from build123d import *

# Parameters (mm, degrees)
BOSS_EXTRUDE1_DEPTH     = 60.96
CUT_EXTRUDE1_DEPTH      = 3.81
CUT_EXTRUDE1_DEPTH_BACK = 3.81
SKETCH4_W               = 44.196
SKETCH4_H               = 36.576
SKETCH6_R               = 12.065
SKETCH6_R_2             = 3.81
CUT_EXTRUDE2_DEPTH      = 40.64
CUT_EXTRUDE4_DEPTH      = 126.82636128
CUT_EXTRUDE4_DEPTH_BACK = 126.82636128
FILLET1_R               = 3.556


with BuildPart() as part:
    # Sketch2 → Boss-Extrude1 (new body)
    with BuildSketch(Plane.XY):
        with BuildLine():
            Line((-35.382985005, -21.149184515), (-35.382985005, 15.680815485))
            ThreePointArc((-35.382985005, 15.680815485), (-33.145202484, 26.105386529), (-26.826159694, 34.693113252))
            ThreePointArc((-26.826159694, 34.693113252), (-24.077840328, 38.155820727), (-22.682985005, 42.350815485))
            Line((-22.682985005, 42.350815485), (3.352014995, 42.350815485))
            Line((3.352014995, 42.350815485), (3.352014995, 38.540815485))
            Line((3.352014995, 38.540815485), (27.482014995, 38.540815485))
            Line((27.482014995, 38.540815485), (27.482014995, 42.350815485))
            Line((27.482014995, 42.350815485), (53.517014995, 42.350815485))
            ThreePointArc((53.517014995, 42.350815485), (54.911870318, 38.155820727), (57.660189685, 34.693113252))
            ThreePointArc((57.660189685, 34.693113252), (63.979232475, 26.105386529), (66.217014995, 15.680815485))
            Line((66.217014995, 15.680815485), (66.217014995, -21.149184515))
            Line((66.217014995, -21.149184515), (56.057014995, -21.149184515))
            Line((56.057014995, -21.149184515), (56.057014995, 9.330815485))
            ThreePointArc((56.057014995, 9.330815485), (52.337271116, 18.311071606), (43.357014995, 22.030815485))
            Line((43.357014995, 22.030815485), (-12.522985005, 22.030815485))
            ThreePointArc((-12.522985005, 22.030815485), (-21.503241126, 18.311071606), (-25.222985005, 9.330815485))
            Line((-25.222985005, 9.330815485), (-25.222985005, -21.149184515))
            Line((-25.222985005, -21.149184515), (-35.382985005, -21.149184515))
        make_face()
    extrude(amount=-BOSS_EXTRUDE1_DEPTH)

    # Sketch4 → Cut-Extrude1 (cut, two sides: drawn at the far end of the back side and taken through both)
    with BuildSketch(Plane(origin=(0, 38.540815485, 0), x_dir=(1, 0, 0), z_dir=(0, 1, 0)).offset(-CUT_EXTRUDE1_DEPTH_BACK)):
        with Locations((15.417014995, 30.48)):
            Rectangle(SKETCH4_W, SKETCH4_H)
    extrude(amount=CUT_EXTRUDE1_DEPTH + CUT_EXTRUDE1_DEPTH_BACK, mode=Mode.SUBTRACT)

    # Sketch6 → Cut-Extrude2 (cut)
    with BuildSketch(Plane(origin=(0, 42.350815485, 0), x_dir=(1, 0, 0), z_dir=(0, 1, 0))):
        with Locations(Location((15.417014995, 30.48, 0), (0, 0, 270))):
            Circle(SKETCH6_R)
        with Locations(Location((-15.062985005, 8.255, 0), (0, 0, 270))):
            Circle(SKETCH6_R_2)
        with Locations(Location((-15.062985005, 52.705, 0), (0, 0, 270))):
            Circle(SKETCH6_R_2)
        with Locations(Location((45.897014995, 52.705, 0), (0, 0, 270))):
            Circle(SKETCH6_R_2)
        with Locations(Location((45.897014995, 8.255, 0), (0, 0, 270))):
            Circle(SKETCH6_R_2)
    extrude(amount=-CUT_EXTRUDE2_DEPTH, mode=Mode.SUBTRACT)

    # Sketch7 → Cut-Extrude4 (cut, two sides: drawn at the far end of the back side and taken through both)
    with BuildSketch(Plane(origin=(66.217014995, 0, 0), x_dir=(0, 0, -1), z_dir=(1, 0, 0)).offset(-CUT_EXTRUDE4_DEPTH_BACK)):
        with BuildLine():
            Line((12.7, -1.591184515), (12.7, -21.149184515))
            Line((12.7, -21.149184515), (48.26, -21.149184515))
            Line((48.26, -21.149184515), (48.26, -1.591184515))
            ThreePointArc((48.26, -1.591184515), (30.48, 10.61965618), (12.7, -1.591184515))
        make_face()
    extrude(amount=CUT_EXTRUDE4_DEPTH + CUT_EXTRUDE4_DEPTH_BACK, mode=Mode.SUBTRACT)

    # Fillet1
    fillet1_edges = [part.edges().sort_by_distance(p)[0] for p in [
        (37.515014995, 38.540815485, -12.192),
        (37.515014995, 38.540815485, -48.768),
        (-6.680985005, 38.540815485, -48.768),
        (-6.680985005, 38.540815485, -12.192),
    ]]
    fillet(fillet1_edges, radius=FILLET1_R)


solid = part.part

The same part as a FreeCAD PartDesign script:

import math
import FreeCAD as App
import Part
import Sketcher
Q = App.Units.Quantity


def edges_at(feature, points):
    """Names of the edges that pass closest to the given points."""
    edges = feature.Shape.Edges
    near = lambda p: min(range(len(edges)), key=lambda i: edges[i].distToShape(Part.Vertex(*p))[0])
    return sorted({f"Edge{near(p) + 1}" for p in points})

doc = App.newDocument("Part")
body = doc.addObject("PartDesign::Body", "Body")

# Sketch on XY plane
sketch1 = body.newObject("Sketcher::SketchObject", "Sketch")
sketch1.AttachmentSupport = (doc.getObject("XY_Plane"), [""])
sketch1.MapMode = "FlatFace"
sketch1.addGeometry(Part.LineSegment(App.Vector(-35.4, 15.7, 0), App.Vector(-35.4, -21.1, 0)), False)
sketch1.addGeometry(Part.LineSegment(App.Vector(-35.4, -21.1, 0), App.Vector(-25.2, -21.1, 0)), False)
sketch1.addGeometry(Part.LineSegment(App.Vector(-25.2, -21.1, 0), App.Vector(-25.2, 9.3, 0)), False)
sketch1.addGeometry(Part.ArcOfCircle(Part.Circle(App.Vector(-12.5, 9.3, 0), App.Vector(0, 0, 1), 12.7), math.radians(90), math.radians(180)), False)
sketch1.addGeometry(Part.LineSegment(App.Vector(-12.5, 22, 0), App.Vector(43.4, 22, 0)), False)
sketch1.addGeometry(Part.ArcOfCircle(Part.Circle(App.Vector(43.4, 9.3, 0), App.Vector(0, 0, 1), 12.7), math.radians(0), math.radians(90)), False)
sketch1.addGeometry(Part.LineSegment(App.Vector(56.1, 9.3, 0), App.Vector(56.1, -21.1, 0)), False)
sketch1.addGeometry(Part.LineSegment(App.Vector(56.1, -21.1, 0), App.Vector(66.2, -21.1, 0)), False)
sketch1.addGeometry(Part.LineSegment(App.Vector(66.2, -21.1, 0), App.Vector(66.2, 15.7, 0)), False)
sketch1.addGeometry(Part.ArcOfCircle(Part.Circle(App.Vector(40.8, 15.7, 0), App.Vector(0, 0, 1), 25.4), math.radians(0), math.radians(48)), False)
sketch1.addGeometry(Part.ArcOfCircle(Part.Circle(App.Vector(66.1, 44.2, 0), App.Vector(0, 0, 1), 12.7), math.radians(-172), math.radians(-132)), False)
sketch1.addGeometry(Part.LineSegment(App.Vector(53.5, 42.4, 0), App.Vector(27.5, 42.4, 0)), False)
sketch1.addGeometry(Part.LineSegment(App.Vector(27.5, 42.4, 0), App.Vector(27.5, 38.5, 0)), False)
sketch1.addGeometry(Part.LineSegment(App.Vector(27.5, 38.5, 0), App.Vector(3.4, 38.5, 0)), False)
sketch1.addGeometry(Part.LineSegment(App.Vector(3.4, 38.5, 0), App.Vector(3.4, 42.4, 0)), False)
sketch1.addGeometry(Part.LineSegment(App.Vector(3.4, 42.4, 0), App.Vector(-22.7, 42.4, 0)), False)
sketch1.addGeometry(Part.ArcOfCircle(Part.Circle(App.Vector(-35.2, 44.2, 0), App.Vector(0, 0, 1), 12.7), math.radians(-48), math.radians(-8)), False)
sketch1.addGeometry(Part.ArcOfCircle(Part.Circle(App.Vector(-10, 15.7, 0), App.Vector(0, 0, 1), 25.4), math.radians(132), math.radians(180)), False)
sketch1.addConstraint(Sketcher.Constraint("Coincident", 0, 2, 1, 1))
sketch1.addConstraint(Sketcher.Constraint("Coincident", 1, 2, 2, 1))
sketch1.addConstraint(Sketcher.Constraint("Tangent", 2, 2, 3, 2))
sketch1.addConstraint(Sketcher.Constraint("Tangent", 3, 1, 4, 1))
sketch1.addConstraint(Sketcher.Constraint("Tangent", 4, 2, 5, 2))
sketch1.addConstraint(Sketcher.Constraint("Tangent", 5, 1, 6, 1))
sketch1.addConstraint(Sketcher.Constraint("Coincident", 6, 2, 7, 1))
sketch1.addConstraint(Sketcher.Constraint("Coincident", 7, 2, 8, 1))
sketch1.addConstraint(Sketcher.Constraint("Tangent", 8, 2, 9, 1))
sketch1.addConstraint(Sketcher.Constraint("Tangent", 9, 2, 10, 2))
sketch1.addConstraint(Sketcher.Constraint("Coincident", 10, 1, 11, 1))
sketch1.addConstraint(Sketcher.Constraint("Coincident", 11, 2, 12, 1))
sketch1.addConstraint(Sketcher.Constraint("Coincident", 12, 2, 13, 1))
sketch1.addConstraint(Sketcher.Constraint("Coincident", 13, 2, 14, 1))
sketch1.addConstraint(Sketcher.Constraint("Coincident", 14, 2, 15, 1))
sketch1.addConstraint(Sketcher.Constraint("Coincident", 15, 2, 16, 2))
sketch1.addConstraint(Sketcher.Constraint("Tangent", 16, 1, 17, 1))
sketch1.addConstraint(Sketcher.Constraint("Tangent", 17, 2, 0, 1))
sketch1.addConstraint(Sketcher.Constraint("Vertical", 0))
sketch1.addConstraint(Sketcher.Constraint("Horizontal", 1))
sketch1.addConstraint(Sketcher.Constraint("Vertical", 2))
sketch1.addConstraint(Sketcher.Constraint("Horizontal", 4))
sketch1.addConstraint(Sketcher.Constraint("Vertical", 6))
sketch1.addConstraint(Sketcher.Constraint("Horizontal", 7))
sketch1.addConstraint(Sketcher.Constraint("Vertical", 8))
sketch1.addConstraint(Sketcher.Constraint("Horizontal", 11))
sketch1.addConstraint(Sketcher.Constraint("Vertical", 12))
sketch1.addConstraint(Sketcher.Constraint("Horizontal", 13))
sketch1.addConstraint(Sketcher.Constraint("Vertical", 14))
sketch1.addConstraint(Sketcher.Constraint("Horizontal", 15))
sketch1.addConstraint(Sketcher.Constraint("Equal", 3, 5))
sketch1.addConstraint(Sketcher.Constraint("Equal", 5, 10))
sketch1.addConstraint(Sketcher.Constraint("Equal", 10, 16))
sketch1.addConstraint(Sketcher.Constraint("Equal", 9, 17))
sketch1.addConstraint(Sketcher.Constraint("Horizontal", 10, 3, 16, 3))
sketch1.addConstraint(Sketcher.Constraint("Horizontal", 9, 3, 17, 3))
sketch1.addConstraint(Sketcher.Constraint("Horizontal", 1, 2, 6, 2))
sketch1.addConstraint(Sketcher.Constraint("Horizontal", 11, 2, 14, 2))
sketch1.addConstraint(Sketcher.Constraint("Equal", 1, 7))
sketch1.addConstraint(Sketcher.Constraint("Equal", 11, 15))
sketch1.addConstraint(Sketcher.Constraint("Radius", 9, Q("1 in")))
sketch1.addConstraint(Sketcher.Constraint("Radius", 3, Q("0.5 in")))
sketch1.addConstraint(Sketcher.Constraint("DistanceX", 1, 1, 1, 2, Q("0.4 in")))
sketch1.addConstraint(Sketcher.Constraint("DistanceX", 4, 1, 4, 2, Q("2.2 in")))
sketch1.addConstraint(Sketcher.Constraint("DistanceY", 2, 1, 2, 2, Q("1.2 in")))
sketch1.addConstraint(Sketcher.Constraint("DistanceX", 13, 2, 13, 1, Q("0.95 in")))
sketch1.addConstraint(Sketcher.Constraint("DistanceY", 0, 2, 0, 1, Q("1.45 in")))
sketch1.addConstraint(Sketcher.Constraint("DistanceY", 12, 2, 12, 1, Q("0.15 in")))
sketch1.addConstraint(Sketcher.Constraint("DistanceX", 4, 2, 10, 1, Q("0.4 in")))
sketch1.addConstraint(Sketcher.Constraint("DistanceY", 4, 2, 10, 1, Q("0.8 in")))
sketch1.addConstraint(Sketcher.Constraint("DistanceX", -1, 1, 9, 2, 57.66019))
sketch1.addConstraint(Sketcher.Constraint("DistanceY", -1, 1, 3, 3, 9.330815))
pad1 = body.newObject("PartDesign::Pad", "Pad")
pad1.Profile = sketch1
pad1.Length = Q("2.4 in")
pad1.Reversed = True

# Sketch on XZ plane
sketch2 = body.newObject("Sketcher::SketchObject", "Sketch001")
sketch2.AttachmentSupport = (doc.getObject("XZ_Plane"), [""])
sketch2.MapMode = "FlatFace"
sketch2.AttachmentOffset = App.Placement(App.Vector(0, 0, -38.540815), App.Rotation())
sketch2.addGeometry(Part.LineSegment(App.Vector(-7, -49, 0), App.Vector(-7, -12, 0)), False)
sketch2.addGeometry(Part.LineSegment(App.Vector(-7, -12, 0), App.Vector(38, -12, 0)), False)
sketch2.addGeometry(Part.LineSegment(App.Vector(38, -12, 0), App.Vector(38, -49, 0)), False)
sketch2.addGeometry(Part.LineSegment(App.Vector(38, -49, 0), App.Vector(-7, -49, 0)), False)
sketch2.addConstraint(Sketcher.Constraint("Coincident", 0, 2, 1, 1))
sketch2.addConstraint(Sketcher.Constraint("Coincident", 1, 2, 2, 1))
sketch2.addConstraint(Sketcher.Constraint("Coincident", 2, 2, 3, 1))
sketch2.addConstraint(Sketcher.Constraint("Coincident", 3, 2, 0, 1))
sketch2.addConstraint(Sketcher.Constraint("Vertical", 0))
sketch2.addConstraint(Sketcher.Constraint("Horizontal", 1))
sketch2.addConstraint(Sketcher.Constraint("Vertical", 2))
sketch2.addConstraint(Sketcher.Constraint("Horizontal", 3))
sketch2.addConstraint(Sketcher.Constraint("DistanceX", 1, 1, 1, 2, Q("1.74 in")))
sketch2.addConstraint(Sketcher.Constraint("DistanceY", 0, 1, 0, 2, Q("1.44 in")))
sketch2.addConstraint(Sketcher.Constraint("DistanceY", 0, 2, -1, 1, Q("0.48 in")))
sketch2.addConstraint(Sketcher.Constraint("DistanceX", 0, 2, -1, 1, 6.680985))
pocket1 = body.newObject("PartDesign::Pocket", "Pocket")
pocket1.Profile = sketch2
pocket1.Type = "TwoLengths"
pocket1.Length = Q("0.15 in")
pocket1.Length2 = Q("0.15 in")

# Sketch on XZ plane
sketch3 = body.newObject("Sketcher::SketchObject", "Sketch002")
sketch3.AttachmentSupport = (doc.getObject("XZ_Plane"), [""])
sketch3.MapMode = "FlatFace"
sketch3.AttachmentOffset = App.Placement(App.Vector(0, 0, -42.350815), App.Rotation())
sketch3.addGeometry(Part.Circle(App.Vector(15.4, -30.5, 0), App.Vector(0, 0, 1), 12.1), False)
sketch3.addGeometry(Part.Circle(App.Vector(-15.1, -8.3, 0), App.Vector(0, 0, 1), 3.8), False)
sketch3.addGeometry(Part.Circle(App.Vector(-15.1, -52.7, 0), App.Vector(0, 0, 1), 3.8), False)
sketch3.addGeometry(Part.Circle(App.Vector(45.9, -52.7, 0), App.Vector(0, 0, 1), 3.8), False)
sketch3.addGeometry(Part.Circle(App.Vector(45.9, -8.3, 0), App.Vector(0, 0, 1), 3.8), False)
sketch3.addConstraint(Sketcher.Constraint("Equal", 1, 2))
sketch3.addConstraint(Sketcher.Constraint("Equal", 2, 3))
sketch3.addConstraint(Sketcher.Constraint("Equal", 3, 4))
sketch3.addConstraint(Sketcher.Constraint("Horizontal", 2, 3, 3, 3))
sketch3.addConstraint(Sketcher.Constraint("Horizontal", 1, 3, 4, 3))
sketch3.addConstraint(Sketcher.Constraint("Vertical", 1, 3, 2, 3))
sketch3.addConstraint(Sketcher.Constraint("Vertical", 3, 3, 4, 3))
sketch3.addConstraint(Sketcher.Constraint("Diameter", 1, Q("0.3 in")))
sketch3.addConstraint(Sketcher.Constraint("Diameter", 0, Q("0.95 in")))
sketch3.addConstraint(Sketcher.Constraint("DistanceY", 0, 3, -1, 1, Q("1.2 in")))
sketch3.addConstraint(Sketcher.Constraint("DistanceX", 1, 3, 0, 3, Q("1.2 in")))
sketch3.addConstraint(Sketcher.Constraint("DistanceX", 0, 3, 3, 3, Q("1.2 in")))
sketch3.addConstraint(Sketcher.Constraint("DistanceY", 2, 3, 1, 3, Q("1.75 in")))
sketch3.addConstraint(Sketcher.Constraint("DistanceY", 1, 3, -1, 1, Q("0.325 in")))
sketch3.addConstraint(Sketcher.Constraint("DistanceX", -1, 1, 0, 3, 15.417015))
pocket2 = body.newObject("PartDesign::Pocket", "Pocket001")
pocket2.Profile = sketch3
pocket2.Length = Q("1.6 in")
pocket2.Reversed = True

# Sketch on YZ plane
sketch4 = body.newObject("Sketcher::SketchObject", "Sketch003")
sketch4.AttachmentSupport = (doc.getObject("YZ_Plane"), [""])
sketch4.MapMode = "FlatFace"
sketch4.AttachmentOffset = App.Placement(App.Vector(0, 0, 66.217015), App.Rotation())
sketch4.addGeometry(Part.LineSegment(App.Vector(-2, -13, 0), App.Vector(-21, -13, 0)), False)
sketch4.addGeometry(Part.LineSegment(App.Vector(-21, -13, 0), App.Vector(-21, -48, 0)), False)
sketch4.addGeometry(Part.LineSegment(App.Vector(-21, -48, 0), App.Vector(-2, -48, 0)), False)
sketch4.addGeometry(Part.ArcOfCircle(Part.Circle(App.Vector(-8, -30, 0), App.Vector(0, 0, 1), 19), math.radians(-69), math.radians(69)), False)
sketch4.addConstraint(Sketcher.Constraint("Coincident", 0, 2, 1, 1))
sketch4.addConstraint(Sketcher.Constraint("Coincident", 1, 2, 2, 1))
sketch4.addConstraint(Sketcher.Constraint("Coincident", 2, 2, 3, 1))
sketch4.addConstraint(Sketcher.Constraint("Coincident", 3, 2, 0, 1))
sketch4.addConstraint(Sketcher.Constraint("Horizontal", 0))
sketch4.addConstraint(Sketcher.Constraint("Vertical", 1))
sketch4.addConstraint(Sketcher.Constraint("Horizontal", 2))
sketch4.addConstraint(Sketcher.Constraint("Vertical", 2, 2, 3, 2))
sketch4.addConstraint(Sketcher.Constraint("Radius", 3, Q("0.75 in")))
sketch4.addConstraint(Sketcher.Constraint("DistanceY", 1, 2, 1, 1, Q("1.4 in")))
sketch4.addConstraint(Sketcher.Constraint("DistanceX", 0, 2, 0, 1, Q("0.77 in")))
sketch4.addConstraint(Sketcher.Constraint("DistanceY", 3, 3, -1, 1, Q("1.2 in")))
sketch4.addConstraint(Sketcher.Constraint("DistanceX", 3, 3, -1, 1, 8.430344))
pocket3 = body.newObject("PartDesign::Pocket", "Pocket002")
pocket3.Profile = sketch4
pocket3.Type = "ThroughAll"
pocket3.Midplane = True
doc.recompute()

fillet = body.newObject("PartDesign::Fillet", "Fillet")
fillet.Base = (pocket3, edges_at(pocket3, [
    (37.515, 38.541, -12.192),
    (37.515, 38.541, -48.768),
    (-6.681, 38.541, -48.768),
    (-6.681, 38.541, -12.192),
]))
fillet.Radius = Q("0.14 in")

doc.recompute()
